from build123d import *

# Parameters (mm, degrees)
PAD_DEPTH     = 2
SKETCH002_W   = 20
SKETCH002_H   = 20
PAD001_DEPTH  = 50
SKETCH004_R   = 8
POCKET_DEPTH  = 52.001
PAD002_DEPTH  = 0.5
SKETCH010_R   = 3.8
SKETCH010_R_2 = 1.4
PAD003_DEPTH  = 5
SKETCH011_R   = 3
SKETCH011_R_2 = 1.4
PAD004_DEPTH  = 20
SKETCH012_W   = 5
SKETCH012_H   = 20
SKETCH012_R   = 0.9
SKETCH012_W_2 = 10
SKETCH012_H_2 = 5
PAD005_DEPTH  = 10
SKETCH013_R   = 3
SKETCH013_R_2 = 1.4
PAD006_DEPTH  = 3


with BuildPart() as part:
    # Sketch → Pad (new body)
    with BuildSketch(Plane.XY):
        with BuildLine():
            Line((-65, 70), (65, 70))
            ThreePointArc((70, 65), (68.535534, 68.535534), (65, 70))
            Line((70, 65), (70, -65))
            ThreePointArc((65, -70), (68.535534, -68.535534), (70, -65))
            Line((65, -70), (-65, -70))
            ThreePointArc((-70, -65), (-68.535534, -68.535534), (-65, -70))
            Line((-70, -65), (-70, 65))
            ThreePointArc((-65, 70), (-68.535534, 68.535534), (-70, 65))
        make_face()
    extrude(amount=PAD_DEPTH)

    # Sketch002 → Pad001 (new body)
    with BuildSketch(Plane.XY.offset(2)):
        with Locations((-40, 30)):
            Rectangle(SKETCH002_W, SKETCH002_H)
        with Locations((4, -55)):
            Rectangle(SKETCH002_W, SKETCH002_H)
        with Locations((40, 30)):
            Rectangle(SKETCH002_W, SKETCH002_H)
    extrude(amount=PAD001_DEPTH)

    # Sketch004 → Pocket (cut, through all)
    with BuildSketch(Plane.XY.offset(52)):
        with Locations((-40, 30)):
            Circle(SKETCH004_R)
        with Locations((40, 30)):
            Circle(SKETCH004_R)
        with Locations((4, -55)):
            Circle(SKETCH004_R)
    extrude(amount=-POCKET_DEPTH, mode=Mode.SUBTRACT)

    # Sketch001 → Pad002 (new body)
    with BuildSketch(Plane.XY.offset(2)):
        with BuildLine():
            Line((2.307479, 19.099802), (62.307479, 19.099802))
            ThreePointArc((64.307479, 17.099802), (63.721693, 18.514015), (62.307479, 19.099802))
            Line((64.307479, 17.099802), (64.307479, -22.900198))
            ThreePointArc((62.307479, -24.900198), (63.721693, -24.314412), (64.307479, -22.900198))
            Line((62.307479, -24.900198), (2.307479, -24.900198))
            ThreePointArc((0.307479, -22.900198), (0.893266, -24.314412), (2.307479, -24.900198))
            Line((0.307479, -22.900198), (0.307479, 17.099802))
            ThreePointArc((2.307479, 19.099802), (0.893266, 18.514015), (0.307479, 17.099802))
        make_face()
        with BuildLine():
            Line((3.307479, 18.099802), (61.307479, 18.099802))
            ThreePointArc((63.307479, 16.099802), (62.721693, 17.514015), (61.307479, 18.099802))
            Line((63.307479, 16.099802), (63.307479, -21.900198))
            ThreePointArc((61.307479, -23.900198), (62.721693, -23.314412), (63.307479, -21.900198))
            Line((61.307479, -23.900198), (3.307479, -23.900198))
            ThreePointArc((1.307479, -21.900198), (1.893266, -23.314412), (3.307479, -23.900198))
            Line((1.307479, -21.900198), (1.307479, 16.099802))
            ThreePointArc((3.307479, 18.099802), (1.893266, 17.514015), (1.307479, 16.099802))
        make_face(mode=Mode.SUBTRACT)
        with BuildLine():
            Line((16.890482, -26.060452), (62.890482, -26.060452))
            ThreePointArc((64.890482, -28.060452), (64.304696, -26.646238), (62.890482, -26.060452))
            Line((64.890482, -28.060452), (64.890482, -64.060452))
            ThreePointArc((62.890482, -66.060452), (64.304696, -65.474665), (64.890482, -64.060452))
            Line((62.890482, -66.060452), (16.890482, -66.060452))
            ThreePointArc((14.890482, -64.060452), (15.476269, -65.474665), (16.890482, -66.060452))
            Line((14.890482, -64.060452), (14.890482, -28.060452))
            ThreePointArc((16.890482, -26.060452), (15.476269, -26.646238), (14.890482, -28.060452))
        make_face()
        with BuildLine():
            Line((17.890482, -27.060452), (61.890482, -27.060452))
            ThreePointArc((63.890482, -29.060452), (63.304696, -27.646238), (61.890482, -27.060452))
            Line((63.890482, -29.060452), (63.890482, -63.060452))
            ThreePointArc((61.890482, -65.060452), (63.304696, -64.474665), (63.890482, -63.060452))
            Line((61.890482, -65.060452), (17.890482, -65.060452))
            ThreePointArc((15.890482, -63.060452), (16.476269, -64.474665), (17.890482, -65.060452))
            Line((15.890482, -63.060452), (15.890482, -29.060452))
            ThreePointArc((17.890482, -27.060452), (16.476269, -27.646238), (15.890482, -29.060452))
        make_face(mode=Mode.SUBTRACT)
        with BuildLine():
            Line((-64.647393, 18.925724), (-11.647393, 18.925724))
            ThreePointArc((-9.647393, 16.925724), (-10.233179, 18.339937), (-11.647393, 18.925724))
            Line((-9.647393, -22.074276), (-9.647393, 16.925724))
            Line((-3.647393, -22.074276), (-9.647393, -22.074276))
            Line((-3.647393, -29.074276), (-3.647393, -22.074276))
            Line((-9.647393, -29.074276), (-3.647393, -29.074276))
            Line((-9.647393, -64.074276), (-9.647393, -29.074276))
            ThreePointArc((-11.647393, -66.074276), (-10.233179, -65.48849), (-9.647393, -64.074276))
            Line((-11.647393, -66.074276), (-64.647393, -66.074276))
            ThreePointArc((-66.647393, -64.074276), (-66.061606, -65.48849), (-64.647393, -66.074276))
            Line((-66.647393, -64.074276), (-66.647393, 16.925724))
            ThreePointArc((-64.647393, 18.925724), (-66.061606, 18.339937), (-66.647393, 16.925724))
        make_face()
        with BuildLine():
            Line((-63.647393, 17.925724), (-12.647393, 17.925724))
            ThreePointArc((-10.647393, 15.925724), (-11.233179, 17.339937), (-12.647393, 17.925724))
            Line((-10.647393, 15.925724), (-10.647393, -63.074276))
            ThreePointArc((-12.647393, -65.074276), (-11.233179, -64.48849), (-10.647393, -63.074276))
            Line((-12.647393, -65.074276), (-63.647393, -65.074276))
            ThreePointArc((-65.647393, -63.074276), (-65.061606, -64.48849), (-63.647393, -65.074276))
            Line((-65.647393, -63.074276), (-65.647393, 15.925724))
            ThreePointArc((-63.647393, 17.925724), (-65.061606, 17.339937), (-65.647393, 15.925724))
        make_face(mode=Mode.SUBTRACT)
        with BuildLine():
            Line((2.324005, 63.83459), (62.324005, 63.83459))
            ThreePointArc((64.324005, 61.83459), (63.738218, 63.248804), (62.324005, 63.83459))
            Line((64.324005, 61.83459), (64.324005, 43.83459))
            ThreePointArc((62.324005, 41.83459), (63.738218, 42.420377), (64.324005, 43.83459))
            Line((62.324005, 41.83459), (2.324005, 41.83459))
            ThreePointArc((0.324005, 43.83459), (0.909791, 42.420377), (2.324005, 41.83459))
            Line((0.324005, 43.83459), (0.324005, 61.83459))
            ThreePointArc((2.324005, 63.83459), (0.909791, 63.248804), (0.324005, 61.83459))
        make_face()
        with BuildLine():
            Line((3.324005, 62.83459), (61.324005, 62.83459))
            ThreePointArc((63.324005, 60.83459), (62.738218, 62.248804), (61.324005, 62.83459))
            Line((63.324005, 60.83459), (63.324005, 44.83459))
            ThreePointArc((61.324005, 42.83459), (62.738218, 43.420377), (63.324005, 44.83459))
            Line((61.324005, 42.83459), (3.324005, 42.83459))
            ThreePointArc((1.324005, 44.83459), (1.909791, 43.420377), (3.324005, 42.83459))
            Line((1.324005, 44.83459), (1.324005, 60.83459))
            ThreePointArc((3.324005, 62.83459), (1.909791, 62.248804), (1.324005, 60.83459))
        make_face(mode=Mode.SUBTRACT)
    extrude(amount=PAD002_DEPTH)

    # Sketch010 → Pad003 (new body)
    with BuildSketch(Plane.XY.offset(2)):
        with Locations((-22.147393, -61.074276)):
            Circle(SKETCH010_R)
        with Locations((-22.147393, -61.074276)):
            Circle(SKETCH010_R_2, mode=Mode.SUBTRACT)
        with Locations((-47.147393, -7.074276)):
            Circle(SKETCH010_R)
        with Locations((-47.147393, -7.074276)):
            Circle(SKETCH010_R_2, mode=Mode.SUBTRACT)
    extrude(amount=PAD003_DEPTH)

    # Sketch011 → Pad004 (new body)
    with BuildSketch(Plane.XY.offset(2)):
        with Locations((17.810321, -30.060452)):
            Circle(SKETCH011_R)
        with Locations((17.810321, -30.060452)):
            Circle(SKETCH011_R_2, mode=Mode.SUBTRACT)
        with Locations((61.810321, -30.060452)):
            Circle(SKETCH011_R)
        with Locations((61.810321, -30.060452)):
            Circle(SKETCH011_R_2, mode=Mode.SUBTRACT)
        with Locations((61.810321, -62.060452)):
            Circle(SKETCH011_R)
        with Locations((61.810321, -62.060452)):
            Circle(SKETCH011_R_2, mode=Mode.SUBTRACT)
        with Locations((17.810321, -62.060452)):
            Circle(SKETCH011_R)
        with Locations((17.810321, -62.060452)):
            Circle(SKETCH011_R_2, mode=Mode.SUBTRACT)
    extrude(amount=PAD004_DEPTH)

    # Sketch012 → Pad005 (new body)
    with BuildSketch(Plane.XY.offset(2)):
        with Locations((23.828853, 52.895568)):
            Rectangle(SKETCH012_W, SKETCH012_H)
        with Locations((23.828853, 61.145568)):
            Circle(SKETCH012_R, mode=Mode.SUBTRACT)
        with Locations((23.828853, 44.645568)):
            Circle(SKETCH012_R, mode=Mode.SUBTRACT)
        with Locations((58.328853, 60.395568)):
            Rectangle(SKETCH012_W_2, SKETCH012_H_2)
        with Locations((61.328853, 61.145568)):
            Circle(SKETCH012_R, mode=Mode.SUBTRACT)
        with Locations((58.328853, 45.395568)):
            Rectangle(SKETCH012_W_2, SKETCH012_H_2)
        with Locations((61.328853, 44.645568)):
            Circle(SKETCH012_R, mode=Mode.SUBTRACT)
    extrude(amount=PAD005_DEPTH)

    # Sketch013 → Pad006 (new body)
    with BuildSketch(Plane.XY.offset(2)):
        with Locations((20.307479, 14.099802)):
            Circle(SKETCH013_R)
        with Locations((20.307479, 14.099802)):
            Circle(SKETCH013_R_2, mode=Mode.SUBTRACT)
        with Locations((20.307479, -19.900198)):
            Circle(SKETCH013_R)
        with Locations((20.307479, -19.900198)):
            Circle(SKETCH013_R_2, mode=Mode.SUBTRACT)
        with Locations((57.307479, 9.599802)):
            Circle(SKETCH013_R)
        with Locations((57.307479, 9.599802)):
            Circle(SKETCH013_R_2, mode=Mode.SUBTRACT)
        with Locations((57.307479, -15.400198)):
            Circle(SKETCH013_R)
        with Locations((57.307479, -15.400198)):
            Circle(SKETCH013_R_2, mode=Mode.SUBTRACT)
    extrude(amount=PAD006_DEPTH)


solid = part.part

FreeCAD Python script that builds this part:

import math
import FreeCAD as App
import Part
import Sketcher
Q = App.Units.Quantity


def add_polygon(sketch, points):
    """Adds a closed chain of lines whose ends are joined by coincident constraints."""
    first, n = sketch.GeometryCount, len(points)
    for a, b in zip(points, points[1:] + points[:1]):
        sketch.addGeometry(Part.LineSegment(App.Vector(*a, 0), App.Vector(*b, 0)), False)
    for i in range(n):
        sketch.addConstraint(Sketcher.Constraint("Coincident", first + i, 2, first + (i + 1) % n, 1))

doc = App.newDocument("Part")
body = doc.addObject("PartDesign::Body", "Body")

# Sketch on XY plane
sketch1 = body.newObject("Sketcher::SketchObject", "Sketch")
sketch1.AttachmentSupport = (doc.getObject("XY_Plane"), [""])
sketch1.MapMode = "FlatFace"
sketch1.addGeometry([
    Part.LineSegment(App.Vector(65, 70, 0), App.Vector(-65, 70, 0)),  # 0
    Part.ArcOfCircle(Part.Circle(App.Vector(-65, 65, 0), App.Vector(0, 0, 1), 5), math.radians(89.999996), math.radians(180.000004)),  # 1
    Part.LineSegment(App.Vector(-70, 65, 0), App.Vector(-70, -65, 0)),  # 2
    Part.ArcOfCircle(Part.Circle(App.Vector(-65, -65, 0), App.Vector(0, 0, 1), 5), math.radians(179.999996), math.radians(270.000004)),  # 3
    Part.LineSegment(App.Vector(-65, -70, 0), App.Vector(65, -70, 0)),  # 4
    Part.ArcOfCircle(Part.Circle(App.Vector(65, -65, 0), App.Vector(0, 0, 1), 5), math.radians(-90.000004), math.radians(0.000004)),  # 5
    Part.LineSegment(App.Vector(70, -65, 0), App.Vector(70, 65, 0)),  # 6
    Part.ArcOfCircle(Part.Circle(App.Vector(65, 65, 0), App.Vector(0, 0, 1), 5), math.radians(-0.000004), math.radians(90.000004)),  # 7
], False)
sketch1.addConstraint([
    Sketcher.Constraint("Tangent", 0, 2, 1, 1),
    Sketcher.Constraint("Tangent", 1, 2, 2, 1),
    Sketcher.Constraint("Tangent", 2, 2, 3, 1),
    Sketcher.Constraint("Tangent", 3, 2, 4, 1),
    Sketcher.Constraint("Tangent", 4, 2, 5, 1),
    Sketcher.Constraint("Tangent", 5, 2, 6, 1),
    Sketcher.Constraint("Tangent", 6, 2, 7, 1),
    Sketcher.Constraint("Tangent", 7, 2, 0, 1),
    Sketcher.Constraint("Horizontal", 0),
    Sketcher.Constraint("Vertical", 2),
    Sketcher.Constraint("Horizontal", 4),
    Sketcher.Constraint("Vertical", 6),
    Sketcher.Constraint("Equal", 1, 3),
    Sketcher.Constraint("Equal", 3, 5),
    Sketcher.Constraint("Equal", 5, 7),
    Sketcher.Constraint("Symmetric", 1, 3, 5, 3, -1, 1),
    Sketcher.Constraint("Equal", 4, 2),
    Sketcher.Constraint("Radius", 1, Q("5 mm")),
    Sketcher.Constraint("DistanceX", 0, 2, 0, 1, Q("130 mm")),
])
pad1 = body.newObject("PartDesign::Pad", "Pad")
pad1.Profile = sketch1
pad1.Length = 2

# Sketch on XY plane
sketch2 = body.newObject("Sketcher::SketchObject", "Sketch001")
sketch2.AttachmentSupport = (doc.getObject("XY_Plane"), [""])
sketch2.MapMode = "FlatFace"
sketch2.AttachmentOffset = App.Placement(App.Vector(0, 0, 2), App.Rotation())
add_polygon(sketch2, [(-50, 40), (-50, 20), (-30, 20), (-30, 40)])  # lines 0-3
add_polygon(sketch2, [(-6, -45), (-6, -65), (14, -65), (14, -45)])  # lines 4-7
add_polygon(sketch2, [(30, 40), (30, 20), (50, 20), (50, 40)])  # lines 8-11
sketch2.addConstraint([
    Sketcher.Constraint("Vertical", 0),
    Sketcher.Constraint("Horizontal", 1),
    Sketcher.Constraint("Vertical", 2),
    Sketcher.Constraint("Horizontal", 3),
    Sketcher.Constraint("Vertical", 4),
    Sketcher.Constraint("Horizontal", 5),
    Sketcher.Constraint("Vertical", 6),
    Sketcher.Constraint("Horizontal", 7),
    Sketcher.Constraint("Vertical", 8),
    Sketcher.Constraint("Horizontal", 9),
    Sketcher.Constraint("Vertical", 10),
    Sketcher.Constraint("Horizontal", 11),
    Sketcher.Constraint("Symmetric", 1, 2, 8, 2, -2),
    Sketcher.Constraint("Symmetric", 3, 2, 10, 2, -2),
    Sketcher.Constraint("Equal", 3, 5),
    Sketcher.Constraint("Equal", 11, 0),
    Sketcher.Constraint("Equal", 2, 4),
    Sketcher.Constraint("DistanceX", 1, 1, 1, 2, Q("20 mm")),
    Sketcher.Constraint("DistanceX", 0, 2, -1, 1, Q("50 mm")),
    Sketcher.Constraint("DistanceY", -1, 1, 0, 2, Q("20 mm")),
    Sketcher.Constraint("DistanceX", 4, 2, -1, 1, Q("6 mm")),
    Sketcher.Constraint("DistanceY", 4, 2, -1, 1, Q("65 mm")),
])
pad2 = body.newObject("PartDesign::Pad", "Pad001")
pad2.Profile = sketch2
pad2.Length = 50

# Sketch on XY plane
sketch3 = body.newObject("Sketcher::SketchObject", "Sketch002")
sketch3.AttachmentSupport = (doc.getObject("XY_Plane"), [""])
sketch3.MapMode = "FlatFace"
sketch3.AttachmentOffset = App.Placement(App.Vector(0, 0, 52), App.Rotation())
sketch3.addGeometry([
    Part.Circle(App.Vector(-40, 30, 0), App.Vector(0, 0, 1), 8),
    Part.Circle(App.Vector(40, 30, 0), App.Vector(0, 0, 1), 8),
    Part.Circle(App.Vector(4, -55, 0), App.Vector(0, 0, 1), 8),
], False)
sketch3.addConstraint([
    Sketcher.Constraint("Equal", 0, 1),
    Sketcher.Constraint("Equal", 1, 2),
    Sketcher.Constraint("Symmetric", 0, 3, 1, 3, -2),
    Sketcher.Constraint("Diameter", 0, Q("16 mm")),
    Sketcher.Constraint("DistanceX", 0, 3, -1, 1, Q("40 mm")),
    Sketcher.Constraint("DistanceY", -1, 1, 0, 3, Q("30 mm")),
    Sketcher.Constraint("DistanceX", -1, 1, 2, 3, Q("4 mm")),
    Sketcher.Constraint("DistanceY", 2, 3, -1, 1, Q("55 mm")),
])
pocket1 = body.newObject("PartDesign::Pocket", "Pocket")
pocket1.Profile = sketch3
pocket1.Type = "ThroughAll"

# Sketch on XY plane
sketch4 = body.newObject("Sketcher::SketchObject", "Sketch003")
sketch4.AttachmentSupport = (doc.getObject("XY_Plane"), [""])
sketch4.MapMode = "FlatFace"
sketch4.AttachmentOffset = App.Placement(App.Vector(0, 0, 2), App.Rotation())
sketch4.addGeometry([
    Part.LineSegment(App.Vector(62.307479, 19.099802, 0), App.Vector(2.307479, 19.099802, 0)),  # 0
    Part.ArcOfCircle(Part.Circle(App.Vector(2.307481, 17.0998, 0), App.Vector(0, 0, 1), 2.000002), math.radians(90.000055), math.radians(179.999945)),  # 1
    Part.LineSegment(App.Vector(0.307479, 17.099802, 0), App.Vector(0.307479, -22.900198, 0)),  # 2
    Part.ArcOfCircle(Part.Circle(App.Vector(2.307479, -22.900198, 0), App.Vector(0, 0, 1), 2), math.radians(-179.999994), math.radians(-90.000006)),  # 3
    Part.LineSegment(App.Vector(2.307479, -24.900198, 0), App.Vector(62.307479, -24.900198, 0)),  # 4
    Part.ArcOfCircle(Part.Circle(App.Vector(62.30748, -22.900199, 0), App.Vector(0, 0, 1), 1.999999), math.radians(-90.000043), math.radians(0.000043)),  # 5
    Part.LineSegment(App.Vector(64.307479, -22.900198, 0), App.Vector(64.307479, 17.099802, 0)),  # 6
    Part.ArcOfCircle(Part.Circle(App.Vector(62.307479, 17.099802, 0), App.Vector(0, 0, 1), 2), math.radians(0.000006), math.radians(89.999994)),  # 7
    Part.LineSegment(App.Vector(3.307479, 18.099802, 0), App.Vector(61.307479, 18.099802, 0)),  # 8
    Part.ArcOfCircle(Part.Circle(App.Vector(61.307479, 16.099802, 0), App.Vector(0, 0, 1), 2), math.radians(0.000006), math.radians(89.999994)),  # 9
    Part.LineSegment(App.Vector(63.307479, 16.099802, 0), App.Vector(63.307479, -21.900198, 0)),  # 10
    Part.ArcOfCircle(Part.Circle(App.Vector(61.30748, -21.900199, 0), App.Vector(0, 0, 1), 1.999999), math.radians(-90.000043), math.radians(0.000043)),  # 11
    Part.LineSegment(App.Vector(61.307479, -23.900198, 0), App.Vector(3.307479, -23.900198, 0)),  # 12
    Part.ArcOfCircle(Part.Circle(App.Vector(3.307479, -21.900198, 0), App.Vector(0, 0, 1), 2), math.radians(-179.999994), math.radians(-90.000006)),  # 13
    Part.LineSegment(App.Vector(1.307479, -21.900198, 0), App.Vector(1.307479, 16.099802, 0)),  # 14
    Part.ArcOfCircle(Part.Circle(App.Vector(3.307481, 16.0998, 0), App.Vector(0, 0, 1), 2.000002), math.radians(90.000055), math.radians(179.999945)),  # 15
    Part.LineSegment(App.Vector(62.890482, -26.060452, 0), App.Vector(16.890482, -26.060452, 0)),  # 16
    Part.ArcOfCircle(Part.Circle(App.Vector(16.890482, -28.060452, 0), App.Vector(0, 0, 1), 2), math.radians(90.000006), math.radians(179.999994)),  # 17
    Part.LineSegment(App.Vector(14.890482, -28.060452, 0), App.Vector(14.890482, -64.060452, 0)),  # 18
    Part.ArcOfCircle(Part.Circle(App.Vector(16.890484, -64.06045, 0), App.Vector(0, 0, 1), 2.000002), math.radians(-179.999945), math.radians(-90.000055)),  # 19
    Part.LineSegment(App.Vector(16.890482, -66.060452, 0), App.Vector(62.890482, -66.060452, 0)),  # 20
    Part.ArcOfCircle(Part.Circle(App.Vector(62.890482, -64.060452, 0), App.Vector(0, 0, 1), 2), math.radians(-89.999994), math.radians(-0.000006)),  # 21
    Part.LineSegment(App.Vector(64.890482, -64.060452, 0), App.Vector(64.890482, -28.060452, 0)),  # 22
    Part.ArcOfCircle(Part.Circle(App.Vector(62.890483, -28.060451, 0), App.Vector(0, 0, 1), 1.999999), math.radians(-0.000043), math.radians(90.000043)),  # 23
    Part.LineSegment(App.Vector(17.890482, -27.060452, 0), App.Vector(61.890482, -27.060452, 0)),  # 24
    Part.ArcOfCircle(Part.Circle(App.Vector(61.890483, -29.060451, 0), App.Vector(0, 0, 1), 1.999999), math.radians(-0.000043), math.radians(90.000043)),  # 25
    Part.LineSegment(App.Vector(63.890482, -29.060452, 0), App.Vector(63.890482, -63.060452, 0)),  # 26
    Part.ArcOfCircle(Part.Circle(App.Vector(61.890482, -63.060452, 0), App.Vector(0, 0, 1), 2), math.radians(-89.999994), math.radians(-0.000006)),  # 27
    Part.LineSegment(App.Vector(61.890482, -65.060452, 0), App.Vector(17.890482, -65.060452, 0)),  # 28
    Part.ArcOfCircle(Part.Circle(App.Vector(17.890484, -63.06045, 0), App.Vector(0, 0, 1), 2.000002), math.radians(-179.999945), math.radians(-90.000055)),  # 29
    Part.LineSegment(App.Vector(15.890482, -63.060452, 0), App.Vector(15.890482, -29.060452, 0)),  # 30
    Part.ArcOfCircle(Part.Circle(App.Vector(17.890482, -29.060452, 0), App.Vector(0, 0, 1), 2), math.radians(90.000006), math.radians(179.999994)),  # 31
    Part.LineSegment(App.Vector(-11.647393, 18.925724, 0), App.Vector(-64.647393, 18.925724, 0)),  # 32
    Part.ArcOfCircle(Part.Circle(App.Vector(-64.647391, 16.925722, 0), App.Vector(0, 0, 1), 2.000002), math.radians(90.000055), math.radians(179.999945)),  # 33
    Part.LineSegment(App.Vector(-66.647393, 16.925724, 0), App.Vector(-66.647393, -64.074276, 0)),  # 34
    Part.ArcOfCircle(Part.Circle(App.Vector(-64.647393, -64.074276, 0), App.Vector(0, 0, 1), 2), math.radians(-179.999994), math.radians(-90.000006)),  # 35
    Part.LineSegment(App.Vector(-64.647393, -66.074276, 0), App.Vector(-11.647393, -66.074276, 0)),  # 36
    Part.ArcOfCircle(Part.Circle(App.Vector(-11.647392, -64.074277, 0), App.Vector(0, 0, 1), 1.999999), math.radians(-90.000043), math.radians(0.000043)),  # 37
    Part.LineSegment(App.Vector(-9.647393, -64.074276, 0), App.Vector(-9.647393, -29.074276, 0)),  # 38
    Part.LineSegment(App.Vector(-9.647393, -29.074276, 0), App.Vector(-3.647393, -29.074276, 0)),  # 39
    Part.LineSegment(App.Vector(-3.647393, -29.074276, 0), App.Vector(-3.647393, -22.074276, 0)),  # 40
    Part.LineSegment(App.Vector(-3.647393, -22.074276, 0), App.Vector(-9.647393, -22.074276, 0)),  # 41
    Part.LineSegment(App.Vector(-9.647393, -22.074276, 0), App.Vector(-9.647393, 16.925724, 0)),  # 42
    Part.ArcOfCircle(Part.Circle(App.Vector(-11.647393, 16.925724, 0), App.Vector(0, 0, 1), 2), math.radians(0.000006), math.radians(89.999994)),  # 43
    Part.LineSegment(App.Vector(-63.647393, 17.925724, 0), App.Vector(-12.647393, 17.925724, 0)),  # 44
    Part.ArcOfCircle(Part.Circle(App.Vector(-12.647393, 15.925724, 0), App.Vector(0, 0, 1), 2), math.radians(0.000006), math.radians(89.999994)),  # 45
    Part.LineSegment(App.Vector(-10.647393, 15.925724, 0), App.Vector(-10.647393, -63.074276, 0)),  # 46
    Part.ArcOfCircle(Part.Circle(App.Vector(-12.647392, -63.074277, 0), App.Vector(0, 0, 1), 1.999999), math.radians(-90.000043), math.radians(0.000043)),  # 47
    Part.LineSegment(App.Vector(-12.647393, -65.074276, 0), App.Vector(-63.647393, -65.074276, 0)),  # 48
    Part.ArcOfCircle(Part.Circle(App.Vector(-63.647393, -63.074276, 0), App.Vector(0, 0, 1), 2), math.radians(-179.999994), math.radians(-90.000006)),  # 49
    Part.LineSegment(App.Vector(-65.647393, -63.074276, 0), App.Vector(-65.647393, 15.925724, 0)),  # 50
    Part.ArcOfCircle(Part.Circle(App.Vector(-63.647391, 15.925722, 0), App.Vector(0, 0, 1), 2.000002), math.radians(90.000055), math.radians(179.999945)),  # 51
    Part.LineSegment(App.Vector(62.324005, 63.83459, 0), App.Vector(2.324005, 63.83459, 0)),  # 52
    Part.ArcOfCircle(Part.Circle(App.Vector(2.324004, 61.834591, 0), App.Vector(0, 0, 1), 1.999999), math.radians(89.999957), math.radians(180.000043)),  # 53
    Part.LineSegment(App.Vector(0.324005, 61.83459, 0), App.Vector(0.324005, 43.83459, 0)),  # 54
    Part.ArcOfCircle(Part.Circle(App.Vector(2.324005, 43.83459, 0), App.Vector(0, 0, 1), 2), math.radians(-179.999994), math.radians(-90.000006)),  # 55
    Part.LineSegment(App.Vector(2.324005, 41.83459, 0), App.Vector(62.324005, 41.83459, 0)),  # 56
    Part.ArcOfCircle(Part.Circle(App.Vector(62.324003, 43.834592, 0), App.Vector(0, 0, 1), 2.000002), math.radians(-89.999945), math.radians(-0.000055)),  # 57
    Part.LineSegment(App.Vector(64.324005, 43.83459, 0), App.Vector(64.324005, 61.83459, 0)),  # 58
    Part.ArcOfCircle(Part.Circle(App.Vector(62.324005, 61.83459, 0), App.Vector(0, 0, 1), 2), math.radians(0.000006), math.radians(89.999994)),  # 59
    Part.LineSegment(App.Vector(3.324005, 62.83459, 0), App.Vector(61.324005, 62.83459, 0)),  # 60
    Part.ArcOfCircle(Part.Circle(App.Vector(61.324005, 60.83459, 0), App.Vector(0, 0, 1), 2), math.radians(0.000006), math.radians(89.999994)),  # 61
    Part.LineSegment(App.Vector(63.324005, 60.83459, 0), App.Vector(63.324005, 44.83459, 0)),  # 62
    Part.ArcOfCircle(Part.Circle(App.Vector(61.324003, 44.834592, 0), App.Vector(0, 0, 1), 2.000002), math.radians(-89.999945), math.radians(-0.000055)),  # 63
    Part.LineSegment(App.Vector(61.324005, 42.83459, 0), App.Vector(3.324005, 42.83459, 0)),  # 64
    Part.ArcOfCircle(Part.Circle(App.Vector(3.324005, 44.83459, 0), App.Vector(0, 0, 1), 2), math.radians(-179.999994), math.radians(-90.000006)),  # 65
    Part.LineSegment(App.Vector(1.324005, 44.83459, 0), App.Vector(1.324005, 60.83459, 0)),  # 66
    Part.ArcOfCircle(Part.Circle(App.Vector(3.324004, 60.834591, 0), App.Vector(0, 0, 1), 1.999999), math.radians(89.999957), math.radians(180.000043)),  # 67
], False)
sketch4.addConstraint([
    Sketcher.Constraint("Tangent", 0, 2, 1, 1),
    Sketcher.Constraint("Tangent", 1, 2, 2, 1),
    Sketcher.Constraint("Tangent", 2, 2, 3, 1),
    Sketcher.Constraint("Tangent", 3, 2, 4, 1),
    Sketcher.Constraint("Tangent", 4, 2, 5, 1),
    Sketcher.Constraint("Tangent", 5, 2, 6, 1),
    Sketcher.Constraint("Tangent", 6, 2, 7, 1),
    Sketcher.Constraint("Tangent", 7, 2, 0, 1),
    Sketcher.Constraint("Tangent", 8, 2, 9, 2),
    Sketcher.Constraint("Tangent", 9, 1, 10, 1),
    Sketcher.Constraint("Tangent", 10, 2, 11, 2),
    Sketcher.Constraint("Tangent", 11, 1, 12, 1),
    Sketcher.Constraint("Tangent", 12, 2, 13, 2),
    Sketcher.Constraint("Tangent", 13, 1, 14, 1),
    Sketcher.Constraint("Tangent", 14, 2, 15, 2),
    Sketcher.Constraint("Tangent", 15, 1, 8, 1),
    Sketcher.Constraint("Tangent", 16, 2, 17, 1),
    Sketcher.Constraint("Tangent", 17, 2, 18, 1),
    Sketcher.Constraint("Tangent", 18, 2, 19, 1),
    Sketcher.Constraint("Tangent", 19, 2, 20, 1),
    Sketcher.Constraint("Tangent", 20, 2, 21, 1),
    Sketcher.Constraint("Tangent", 21, 2, 22, 1),
    Sketcher.Constraint("Tangent", 22, 2, 23, 1),
    Sketcher.Constraint("Tangent", 23, 2, 16, 1),
    Sketcher.Constraint("Tangent", 24, 2, 25, 2),
    Sketcher.Constraint("Tangent", 25, 1, 26, 1),
    Sketcher.Constraint("Tangent", 26, 2, 27, 2),
    Sketcher.Constraint("Tangent", 27, 1, 28, 1),
    Sketcher.Constraint("Tangent", 28, 2, 29, 2),
    Sketcher.Constraint("Tangent", 29, 1, 30, 1),
    Sketcher.Constraint("Tangent", 30, 2, 31, 2),
    Sketcher.Constraint("Tangent", 31, 1, 24, 1),
    Sketcher.Constraint("Tangent", 32, 2, 33, 1),
    Sketcher.Constraint("Tangent", 33, 2, 34, 1),
    Sketcher.Constraint("Tangent", 34, 2, 35, 1),
    Sketcher.Constraint("Tangent", 35, 2, 36, 1),
    Sketcher.Constraint("Tangent", 36, 2, 37, 1),
    Sketcher.Constraint("Tangent", 37, 2, 38, 1),
    Sketcher.Constraint("Coincident", 38, 2, 39, 1),
    Sketcher.Constraint("Coincident", 39, 2, 40, 1),
    Sketcher.Constraint("Coincident", 40, 2, 41, 1),
    Sketcher.Constraint("Coincident", 41, 2, 42, 1),
    Sketcher.Constraint("Tangent", 42, 2, 43, 1),
    Sketcher.Constraint("Tangent", 43, 2, 32, 1),
    Sketcher.Constraint("Tangent", 44, 2, 45, 2),
    Sketcher.Constraint("Tangent", 45, 1, 46, 1),
    Sketcher.Constraint("Tangent", 46, 2, 47, 2),
    Sketcher.Constraint("Tangent", 47, 1, 48, 1),
    Sketcher.Constraint("Tangent", 48, 2, 49, 2),
    Sketcher.Constraint("Tangent", 49, 1, 50, 1),
    Sketcher.Constraint("Tangent", 50, 2, 51, 2),
    Sketcher.Constraint("Tangent", 51, 1, 44, 1),
    Sketcher.Constraint("Tangent", 52, 2, 53, 1),
    Sketcher.Constraint("Tangent", 53, 2, 54, 1),
    Sketcher.Constraint("Tangent", 54, 2, 55, 1),
    Sketcher.Constraint("Tangent", 55, 2, 56, 1),
    Sketcher.Constraint("Tangent", 56, 2, 57, 1),
    Sketcher.Constraint("Tangent", 57, 2, 58, 1),
    Sketcher.Constraint("Tangent", 58, 2, 59, 1),
    Sketcher.Constraint("Tangent", 59, 2, 52, 1),
    Sketcher.Constraint("Tangent", 60, 2, 61, 2),
    Sketcher.Constraint("Tangent", 61, 1, 62, 1),
    Sketcher.Constraint("Tangent", 62, 2, 63, 2),
    Sketcher.Constraint("Tangent", 63, 1, 64, 1),
    Sketcher.Constraint("Tangent", 64, 2, 65, 2),
    Sketcher.Constraint("Tangent", 65, 1, 66, 1),
    Sketcher.Constraint("Tangent", 66, 2, 67, 2),
    Sketcher.Constraint("Tangent", 67, 1, 60, 1),
    Sketcher.Constraint("Horizontal", 0),
    Sketcher.Constraint("Vertical", 2),
    Sketcher.Constraint("Horizontal", 4),
    Sketcher.Constraint("Vertical", 6),
    Sketcher.Constraint("Horizontal", 8),
    Sketcher.Constraint("Vertical", 10),
    Sketcher.Constraint("Horizontal", 12),
    Sketcher.Constraint("Vertical", 14),
    Sketcher.Constraint("Horizontal", 16),
    Sketcher.Constraint("Vertical", 18),
    Sketcher.Constraint("Horizontal", 20),
    Sketcher.Constraint("Vertical", 22),
    Sketcher.Constraint("Horizontal", 24),
    Sketcher.Constraint("Vertical", 26),
    Sketcher.Constraint("Horizontal", 28),
    Sketcher.Constraint("Vertical", 30),
    Sketcher.Constraint("Horizontal", 32),
    Sketcher.Constraint("Vertical", 34),
    Sketcher.Constraint("Horizontal", 36),
    Sketcher.Constraint("Vertical", 38),
    Sketcher.Constraint("Horizontal", 39),
    Sketcher.Constraint("Vertical", 40),
    Sketcher.Constraint("Horizontal", 41),
    Sketcher.Constraint("Vertical", 42),
    Sketcher.Constraint("Horizontal", 44),
    Sketcher.Constraint("Vertical", 46),
    Sketcher.Constraint("Horizontal", 48),
    Sketcher.Constraint("Vertical", 50),
    Sketcher.Constraint("Horizontal", 52),
    Sketcher.Constraint("Vertical", 54),
    Sketcher.Constraint("Horizontal", 56),
    Sketcher.Constraint("Vertical", 58),
    Sketcher.Constraint("Horizontal", 60),
    Sketcher.Constraint("Vertical", 62),
    Sketcher.Constraint("Horizontal", 64),
    Sketcher.Constraint("Vertical", 66),
    Sketcher.Constraint("Equal", 1, 3),
    Sketcher.Constraint("Equal", 3, 5),
    Sketcher.Constraint("Equal", 5, 7),
    Sketcher.Constraint("Equal", 7, 9),
    Sketcher.Constraint("Equal", 9, 11),
    Sketcher.Constraint("Equal", 11, 13),
    Sketcher.Constraint("Equal", 13, 15),
    Sketcher.Constraint("Equal", 15, 17),
    Sketcher.Constraint("Equal", 17, 19),
    Sketcher.Constraint("Equal", 19, 21),
    Sketcher.Constraint("Equal", 21, 23),
    Sketcher.Constraint("Equal", 23, 25),
    Sketcher.Constraint("Equal", 25, 27),
    Sketcher.Constraint("Equal", 27, 29),
    Sketcher.Constraint("Equal", 29, 31),
    Sketcher.Constraint("Equal", 31, 33),
    Sketcher.Constraint("Equal", 33, 35),
    Sketcher.Constraint("Equal", 35, 37),
    Sketcher.Constraint("Equal", 37, 43),
    Sketcher.Constraint("Equal", 43, 45),
    Sketcher.Constraint("Equal", 45, 47),
    Sketcher.Constraint("Equal", 47, 49),
    Sketcher.Constraint("Equal", 49, 51),
    Sketcher.Constraint("Equal", 49, 53),
    Sketcher.Constraint("Equal", 53, 55),
    Sketcher.Constraint("Equal", 55, 57),
    Sketcher.Constraint("Equal", 57, 59),
    Sketcher.Constraint("Equal", 59, 61),
    Sketcher.Constraint("Equal", 61, 63),
    Sketcher.Constraint("Equal", 63, 65),
    Sketcher.Constraint("Equal", 65, 67),
    Sketcher.Constraint("Vertical", 37, 3, 43, 3),
    Sketcher.Constraint("Equal", 4, 52),
    Sketcher.Constraint("Equal", 12, 60),
    Sketcher.Constraint("Radius", 1, Q("2.000002 mm")),
    Sketcher.Constraint("DistanceX", 0, 2, 0, 1, Q("60 mm")),
    Sketcher.Constraint("DistanceX", 8, 1, 8, 2, Q("58 mm")),
    Sketcher.Constraint("DistanceX", 16, 2, 16, 1, Q("46 mm")),
    Sketcher.Constraint("DistanceX", 24, 1, 24, 2, Q("44 mm")),
    Sketcher.Constraint("DistanceX", 32, 2, 32, 1, Q("53 mm")),
    Sketcher.Constraint("DistanceX", 39, 1, 39, 2, Q("6 mm")),
    Sketcher.Constraint("DistanceX", 44, 1, 44, 2, Q("51 mm")),
    Sketcher.Constraint("DistanceY", 2, 2, 2, 1, Q("40 mm")),
    Sketcher.Constraint("DistanceY", 10, 2, 10, 1, Q("38 mm")),
    Sketcher.Constraint("DistanceY", 18, 2, 18, 1, Q("36 mm")),
    Sketcher.Constraint("DistanceY", 26, 2, 26, 1, Q("34 mm")),
    Sketcher.Constraint("DistanceY", 34, 2, 34, 1, Q("81 mm")),
    Sketcher.Constraint("DistanceY", 38, 1, 38, 2, Q("35 mm")),
    Sketcher.Constraint("DistanceY", 40, 1, 40, 2, Q("7 mm")),
    Sketcher.Constraint("DistanceY", 46, 2, 46, 1, Q("79 mm")),
    Sketcher.Constraint("DistanceY", 54, 2, 54, 1, Q("18 mm")),
    Sketcher.Constraint("DistanceY", 62, 2, 62, 1, Q("16 mm")),
    Sketcher.Constraint("DistanceY", -1, 1, 1, 3, Q("17.0998 mm")),
    Sketcher.Constraint("DistanceY", -1, 1, 9, 3, Q("16.099802 mm")),
    Sketcher.Constraint("DistanceX", -1, 1, 1, 3, Q("2.307481 mm")),
    Sketcher.Constraint("DistanceX", -1, 1, 9, 3, Q("61.307479 mm")),
    Sketcher.Constraint("DistanceY", 19, 3, -1, 1, Q("64.06045 mm")),
    Sketcher.Constraint("DistanceX", -1, 1, 21, 3, Q("62.890482 mm")),
    Sketcher.Constraint("DistanceY", 25, 3, -1, 1, Q("29.060451 mm")),
    Sketcher.Constraint("DistanceX", -1, 1, 27, 3, Q("61.890482 mm")),
    Sketcher.Constraint("DistanceX", 33, 3, -1, 1, Q("64.647391 mm")),
    Sketcher.Constraint("DistanceX", 47, 3, -1, 1, Q("12.647392 mm")),
    Sketcher.Constraint("DistanceY", -1, 1, 53, 3, Q("61.834591 mm")),
    Sketcher.Constraint("DistanceY", -1, 1, 61, 3, Q("60.83459 mm")),
    Sketcher.Constraint("DistanceY", -1, 1, 33, 3, Q("16.925722 mm")),
    Sketcher.Constraint("DistanceY", -1, 1, 45, 3, Q("15.925724 mm")),
    Sketcher.Constraint("DistanceX", -1, 1, 53, 3, Q("2.324004 mm")),
    Sketcher.Constraint("DistanceX", -1, 1, 61, 3, Q("61.324005 mm")),
])
pad3 = body.newObject("PartDesign::Pad", "Pad002")
pad3.Profile = sketch4
pad3.Length = 0.5

# Sketch on XY plane
sketch5 = body.newObject("Sketcher::SketchObject", "Sketch004")
sketch5.AttachmentSupport = (doc.getObject("XY_Plane"), [""])
sketch5.MapMode = "FlatFace"
sketch5.AttachmentOffset = App.Placement(App.Vector(0, 0, 2), App.Rotation())
sketch5.addGeometry([
    Part.Circle(App.Vector(-22.147393, -61.074276, 0), App.Vector(0, 0, 1), 3.8),
    Part.Circle(App.Vector(-22.147393, -61.074276, 0), App.Vector(0, 0, 1), 1.4),
    Part.Circle(App.Vector(-47.147393, -7.074276, 0), App.Vector(0, 0, 1), 3.8),
    Part.Circle(App.Vector(-47.147393, -7.074276, 0), App.Vector(0, 0, 1), 1.4),
], False)
sketch5.addConstraint([
    Sketcher.Constraint("Coincident", 1, 3, 0, 3),
    Sketcher.Constraint("Coincident", 3, 3, 2, 3),
    Sketcher.Constraint("Equal", 0, 2),
    Sketcher.Constraint("Equal", 1, 3),
    Sketcher.Constraint("Diameter", 0, Q("7.6 mm")),
    Sketcher.Constraint("Diameter", 1, Q("2.8 mm")),
    Sketcher.Constraint("DistanceX", 2, 3, 0, 3, Q("25 mm")),
    Sketcher.Constraint("DistanceY", 0, 3, 2, 3, Q("54 mm")),
    Sketcher.Constraint("DistanceX", 0, 3, -1, 1, Q("22.147393 mm")),
    Sketcher.Constraint("DistanceY", 0, 3, -1, 1, Q("61.074276 mm")),
])
pad4 = body.newObject("PartDesign::Pad", "Pad003")
pad4.Profile = sketch5
pad4.Length = 5

# Sketch on XY plane
sketch6 = body.newObject("Sketcher::SketchObject", "Sketch005")
sketch6.AttachmentSupport = (doc.getObject("XY_Plane"), [""])
sketch6.MapMode = "FlatFace"
sketch6.AttachmentOffset = App.Placement(App.Vector(0, 0, 2), App.Rotation())
sketch6.addGeometry([
    Part.Circle(App.Vector(17.810321, -30.060452, 0), App.Vector(0, 0, 1), 3),  # 0
    Part.Circle(App.Vector(17.810321, -30.060452, 0), App.Vector(0, 0, 1), 1.4),  # 1
    Part.Circle(App.Vector(61.810321, -30.060452, 0), App.Vector(0, 0, 1), 3),  # 2
    Part.Circle(App.Vector(61.810321, -30.060452, 0), App.Vector(0, 0, 1), 1.4),  # 3
    Part.Circle(App.Vector(61.810321, -62.060452, 0), App.Vector(0, 0, 1), 3),  # 4
    Part.Circle(App.Vector(61.810321, -62.060452, 0), App.Vector(0, 0, 1), 1.4),  # 5
    Part.Circle(App.Vector(17.810321, -62.060452, 0), App.Vector(0, 0, 1), 3),  # 6
    Part.Circle(App.Vector(17.810321, -62.060452, 0), App.Vector(0, 0, 1), 1.4),  # 7
], False)
sketch6.addConstraint([
    Sketcher.Constraint("Coincident", 1, 3, 0, 3),
    Sketcher.Constraint("Coincident", 3, 3, 2, 3),
    Sketcher.Constraint("Coincident", 5, 3, 4, 3),
    Sketcher.Constraint("Coincident", 7, 3, 6, 3),
    Sketcher.Constraint("Equal", 0, 2),
    Sketcher.Constraint("Equal", 1, 3),
    Sketcher.Constraint("Equal", 2, 4),
    Sketcher.Constraint("Equal", 3, 5),
    Sketcher.Constraint("Equal", 4, 6),
    Sketcher.Constraint("Equal", 5, 7),
    Sketcher.Constraint("Horizontal", 1, 3, 2, 3),
    Sketcher.Constraint("Horizontal", 5, 3, 6, 3),
    Sketcher.Constraint("Vertical", 3, 3, 4, 3),
    Sketcher.Constraint("Vertical", 1, 3, 6, 3),
    Sketcher.Constraint("Diameter", 0, Q("6 mm")),
    Sketcher.Constraint("Diameter", 1, Q("2.8 mm")),
    Sketcher.Constraint("DistanceX", 0, 3, 2, 3, Q("44 mm")),
    Sketcher.Constraint("DistanceY", 4, 3, 2, 3, Q("32 mm")),
    Sketcher.Constraint("DistanceX", -1, 1, 0, 3, Q("17.810321 mm")),
    Sketcher.Constraint("DistanceY", 4, 3, -1, 1, Q("62.060452 mm")),
])
pad5 = body.newObject("PartDesign::Pad", "Pad004")
pad5.Profile = sketch6
pad5.Length = 20

# Sketch on XY plane
sketch7 = body.newObject("Sketcher::SketchObject", "Sketch006")
sketch7.AttachmentSupport = (doc.getObject("XY_Plane"), [""])
sketch7.MapMode = "FlatFace"
sketch7.AttachmentOffset = App.Placement(App.Vector(0, 0, 2), App.Rotation())
add_polygon(sketch7, [(21.328853, 62.895568), (21.328853, 42.895568), (26.328853, 42.895568), (26.328853, 62.895568)])  # lines 0-3
sketch7.addGeometry(Part.Circle(App.Vector(23.828853, 44.645568, 0), App.Vector(0, 0, 1), 0.9), False)  # 4
sketch7.addGeometry(Part.Circle(App.Vector(23.828853, 61.145568, 0), App.Vector(0, 0, 1), 0.9), False)  # 5
add_polygon(sketch7, [(53.328853, 62.895568), (53.328853, 57.895568), (63.328853, 57.895568), (63.328853, 62.895568)])  # lines 6-9
sketch7.addGeometry(Part.Circle(App.Vector(61.328853, 61.145568, 0), App.Vector(0, 0, 1), 0.9), False)  # 10
add_polygon(sketch7, [(53.328853, 47.895568), (53.328853, 42.895568), (63.328853, 42.895568), (63.328853, 47.895568)])  # lines 11-14
sketch7.addGeometry(Part.Circle(App.Vector(61.328853, 44.645568, 0), App.Vector(0, 0, 1), 0.9), False)  # 15
sketch7.addConstraint([
    Sketcher.Constraint("Vertical", 0),
    Sketcher.Constraint("Horizontal", 1),
    Sketcher.Constraint("Vertical", 2),
    Sketcher.Constraint("Horizontal", 3),
    Sketcher.Constraint("Vertical", 6),
    Sketcher.Constraint("Horizontal", 7),
    Sketcher.Constraint("Vertical", 8),
    Sketcher.Constraint("Horizontal", 9),
    Sketcher.Constraint("Vertical", 11),
    Sketcher.Constraint("Horizontal", 12),
    Sketcher.Constraint("Vertical", 13),
    Sketcher.Constraint("Horizontal", 14),
    Sketcher.Constraint("Equal", 4, 5),
    Sketcher.Constraint("Equal", 5, 10),
    Sketcher.Constraint("Equal", 10, 15),
    Sketcher.Constraint("Horizontal", 5, 3, 10, 3),
    Sketcher.Constraint("Horizontal", 4, 3, 15, 3),
    Sketcher.Constraint("Horizontal", 3, 2, 8, 2),
    Sketcher.Constraint("Horizontal", 1, 2, 11, 2),
    Sketcher.Constraint("Vertical", 4, 3, 5, 3),
    Sketcher.Constraint("Vertical", 10, 3, 15, 3),
    Sketcher.Constraint("Vertical", 9, 2, 11, 2),
    Sketcher.Constraint("Vertical", 8, 2, 12, 2),
    Sketcher.Constraint("Equal", 3, 6),
    Sketcher.Constraint("Equal", 8, 11),
    Sketcher.Constraint("Diameter", 4, Q("1.8 mm")),
    Sketcher.Constraint("DistanceX", 1, 1, 1, 2, Q("5 mm")),
    Sketcher.Constraint("DistanceX", 7, 1, 7, 2, Q("10 mm")),
    Sketcher.Constraint("DistanceY", 0, 2, 0, 1, Q("20 mm")),
    Sketcher.Constraint("DistanceX", 0, 2, 15, 3, Q("40 mm")),
    Sketcher.Constraint("DistanceX", 6, 2, 10, 3, Q("8 mm")),
    Sketcher.Constraint("DistanceY", 4, 3, 5, 3, Q("16.5 mm")),
    Sketcher.Constraint("DistanceX", 5, 3, 10, 3, Q("37.5 mm")),
    Sketcher.Constraint("DistanceY", 0, 2, 4, 3, Q("1.75 mm")),
    Sketcher.Constraint("DistanceX", -1, 1, 4, 3, Q("23.828853 mm")),
    Sketcher.Constraint("DistanceY", -1, 1, 4, 3, Q("44.645568 mm")),
])
pad6 = body.newObject("PartDesign::Pad", "Pad005")
pad6.Profile = sketch7
pad6.Length = 10

# Sketch on XY plane
sketch8 = body.newObject("Sketcher::SketchObject", "Sketch007")
sketch8.AttachmentSupport = (doc.getObject("XY_Plane"), [""])
sketch8.MapMode = "FlatFace"
sketch8.AttachmentOffset = App.Placement(App.Vector(0, 0, 2), App.Rotation())
sketch8.addGeometry([
    Part.Circle(App.Vector(20.307479, 14.099802, 0), App.Vector(0, 0, 1), 3),  # 0
    Part.Circle(App.Vector(20.307479, 14.099802, 0), App.Vector(0, 0, 1), 1.4),  # 1
    Part.Circle(App.Vector(20.307479, -19.900198, 0), App.Vector(0, 0, 1), 3),  # 2
    Part.Circle(App.Vector(20.307479, -19.900198, 0), App.Vector(0, 0, 1), 1.4),  # 3
    Part.Circle(App.Vector(57.307479, 9.599802, 0), App.Vector(0, 0, 1), 3),  # 4
    Part.Circle(App.Vector(57.307479, 9.599802, 0), App.Vector(0, 0, 1), 1.4),  # 5
    Part.Circle(App.Vector(57.307479, -15.400198, 0), App.Vector(0, 0, 1), 3),  # 6
    Part.Circle(App.Vector(57.307479, -15.400198, 0), App.Vector(0, 0, 1), 1.4),  # 7
], False)
sketch8.addConstraint([
    Sketcher.Constraint("Coincident", 1, 3, 0, 3),
    Sketcher.Constraint("Coincident", 3, 3, 2, 3),
    Sketcher.Constraint("Coincident", 5, 3, 4, 3),
    Sketcher.Constraint("Coincident", 7, 3, 6, 3),
    Sketcher.Constraint("Equal", 0, 2),
    Sketcher.Constraint("Equal", 1, 3),
    Sketcher.Constraint("Equal", 2, 4),
    Sketcher.Constraint("Equal", 3, 5),
    Sketcher.Constraint("Equal", 4, 6),
    Sketcher.Constraint("Equal", 5, 7),
    Sketcher.Constraint("Vertical", 1, 3, 2, 3),
    Sketcher.Constraint("Vertical", 5, 3, 6, 3),
    Sketcher.Constraint("Diameter", 0, Q("6 mm")),
    Sketcher.Constraint("Diameter", 1, Q("2.8 mm")),
    Sketcher.Constraint("DistanceY", 2, 3, 0, 3, Q("34 mm")),
    Sketcher.Constraint("DistanceX", 0, 3, 4, 3, Q("37 mm")),
    Sketcher.Constraint("DistanceY", 6, 3, 4, 3, Q("25 mm")),
    Sketcher.Constraint("DistanceY", 4, 3, 0, 3, Q("4.5 mm")),
    Sketcher.Constraint("DistanceX", -1, 1, 0, 3, Q("20.307479 mm")),
    Sketcher.Constraint("DistanceY", -1, 1, 0, 3, Q("14.099802 mm")),
])
pad7 = body.newObject("PartDesign::Pad", "Pad006")
pad7.Profile = sketch8
pad7.Length = 3

doc.recompute()
